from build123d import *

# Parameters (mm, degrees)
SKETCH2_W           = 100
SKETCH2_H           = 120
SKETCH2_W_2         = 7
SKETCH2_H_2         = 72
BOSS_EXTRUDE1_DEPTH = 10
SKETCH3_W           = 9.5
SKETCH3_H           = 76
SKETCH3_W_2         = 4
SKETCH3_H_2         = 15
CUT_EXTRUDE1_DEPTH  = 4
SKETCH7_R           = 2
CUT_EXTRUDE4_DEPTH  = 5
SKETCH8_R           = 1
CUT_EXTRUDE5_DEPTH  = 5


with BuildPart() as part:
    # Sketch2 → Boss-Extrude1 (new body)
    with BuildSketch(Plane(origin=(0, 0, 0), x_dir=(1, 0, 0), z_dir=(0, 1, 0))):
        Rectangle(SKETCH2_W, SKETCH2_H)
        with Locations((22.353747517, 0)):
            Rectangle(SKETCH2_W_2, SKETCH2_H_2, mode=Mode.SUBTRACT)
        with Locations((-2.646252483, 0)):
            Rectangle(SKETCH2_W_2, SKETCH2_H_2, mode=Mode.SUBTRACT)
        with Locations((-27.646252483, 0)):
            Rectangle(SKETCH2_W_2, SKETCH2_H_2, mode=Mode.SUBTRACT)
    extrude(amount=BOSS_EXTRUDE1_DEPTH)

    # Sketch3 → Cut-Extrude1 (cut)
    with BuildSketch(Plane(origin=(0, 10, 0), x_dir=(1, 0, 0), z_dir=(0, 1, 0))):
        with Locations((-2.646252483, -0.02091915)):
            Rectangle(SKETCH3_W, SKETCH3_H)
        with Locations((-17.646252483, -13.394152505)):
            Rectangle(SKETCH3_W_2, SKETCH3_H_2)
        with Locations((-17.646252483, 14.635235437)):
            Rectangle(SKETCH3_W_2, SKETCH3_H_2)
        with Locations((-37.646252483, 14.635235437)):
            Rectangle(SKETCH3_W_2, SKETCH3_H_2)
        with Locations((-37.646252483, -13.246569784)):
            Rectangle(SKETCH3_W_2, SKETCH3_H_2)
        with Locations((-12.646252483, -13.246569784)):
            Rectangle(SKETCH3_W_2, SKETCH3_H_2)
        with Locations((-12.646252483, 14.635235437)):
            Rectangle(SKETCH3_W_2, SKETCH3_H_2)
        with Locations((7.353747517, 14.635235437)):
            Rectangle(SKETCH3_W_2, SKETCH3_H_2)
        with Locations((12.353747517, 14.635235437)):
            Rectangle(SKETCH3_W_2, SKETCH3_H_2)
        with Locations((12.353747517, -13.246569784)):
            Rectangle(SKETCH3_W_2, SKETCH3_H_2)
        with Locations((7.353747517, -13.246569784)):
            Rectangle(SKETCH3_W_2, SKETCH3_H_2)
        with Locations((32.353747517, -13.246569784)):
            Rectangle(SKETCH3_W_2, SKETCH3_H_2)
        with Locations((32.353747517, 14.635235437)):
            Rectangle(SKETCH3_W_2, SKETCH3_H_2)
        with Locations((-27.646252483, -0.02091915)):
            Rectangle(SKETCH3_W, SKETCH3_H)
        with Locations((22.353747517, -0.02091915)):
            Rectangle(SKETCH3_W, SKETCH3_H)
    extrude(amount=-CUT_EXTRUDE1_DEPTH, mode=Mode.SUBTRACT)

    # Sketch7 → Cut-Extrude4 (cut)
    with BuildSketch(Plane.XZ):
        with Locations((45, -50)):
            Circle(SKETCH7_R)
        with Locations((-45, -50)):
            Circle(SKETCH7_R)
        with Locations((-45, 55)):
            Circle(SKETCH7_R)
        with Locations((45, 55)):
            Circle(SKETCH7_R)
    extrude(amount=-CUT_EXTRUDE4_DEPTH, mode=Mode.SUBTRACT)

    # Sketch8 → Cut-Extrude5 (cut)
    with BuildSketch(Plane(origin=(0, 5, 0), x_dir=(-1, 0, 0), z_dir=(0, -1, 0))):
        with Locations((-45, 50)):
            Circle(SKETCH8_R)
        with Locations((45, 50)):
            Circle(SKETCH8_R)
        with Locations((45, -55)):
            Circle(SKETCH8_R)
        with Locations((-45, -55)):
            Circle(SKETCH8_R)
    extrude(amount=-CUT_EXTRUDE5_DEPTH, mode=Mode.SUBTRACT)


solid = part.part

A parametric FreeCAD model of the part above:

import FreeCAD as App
import Part
import Sketcher

V = App.Vector
Q = App.Units.Quantity

doc = App.newDocument("Part")
body = doc.addObject("PartDesign::Body", "Body")

sketch1 = body.newObject("Sketcher::SketchObject", "Sketch")
sketch1.AttachmentSupport = (doc.getObject("XZ_Plane"), [""])
sketch1.MapMode = "FlatFace"
sketch1.addGeometry([
    Part.LineSegment(V(-50, -60, 0), V(-50, 60, 0)),
    Part.LineSegment(V(-50, 60, 0), V(50, 60, 0)),
    Part.LineSegment(V(50, 60, 0), V(50, -60, 0)),
    Part.LineSegment(V(50, -60, 0), V(-50, -60, 0)),
    Part.LineSegment(V(-24, 36, 0), V(-31, 36, 0)),
    Part.LineSegment(V(-31, 36, 0), V(-31, -36, 0)),
    Part.LineSegment(V(-31, -36, 0), V(-24, -36, 0)),
    Part.LineSegment(V(-24, -36, 0), V(-24, 36, 0)),
    Part.LineSegment(V(1, 36, 0), V(-6, 36, 0)),
    Part.LineSegment(V(-6, 36, 0), V(-6, -36, 0)),
    Part.LineSegment(V(-6, -36, 0), V(1, -36, 0)),
    Part.LineSegment(V(1, -36, 0), V(1, 36, 0)),
    Part.LineSegment(V(26, 36, 0), V(19, 36, 0)),
    Part.LineSegment(V(19, 36, 0), V(19, -36, 0)),
    Part.LineSegment(V(19, -36, 0), V(26, -36, 0)),
    Part.LineSegment(V(26, -36, 0), V(26, 36, 0)),
], False)
sketch1.addConstraint([
    Sketcher.Constraint("Coincident", 0, 2, 1, 1),
    Sketcher.Constraint("Coincident", 1, 2, 2, 1),
    Sketcher.Constraint("Coincident", 2, 2, 3, 1),
    Sketcher.Constraint("Coincident", 3, 2, 0, 1),
    Sketcher.Constraint("Coincident", 4, 2, 5, 1),
    Sketcher.Constraint("Coincident", 5, 2, 6, 1),
    Sketcher.Constraint("Coincident", 6, 2, 7, 1),
    Sketcher.Constraint("Coincident", 7, 2, 4, 1),
    Sketcher.Constraint("Coincident", 8, 2, 9, 1),
    Sketcher.Constraint("Coincident", 9, 2, 10, 1),
    Sketcher.Constraint("Coincident", 10, 2, 11, 1),
    Sketcher.Constraint("Coincident", 11, 2, 8, 1),
    Sketcher.Constraint("Coincident", 12, 2, 13, 1),
    Sketcher.Constraint("Coincident", 13, 2, 14, 1),
    Sketcher.Constraint("Coincident", 14, 2, 15, 1),
    Sketcher.Constraint("Coincident", 15, 2, 12, 1),
    Sketcher.Constraint("Vertical", 0),
    Sketcher.Constraint("Horizontal", 1),
    Sketcher.Constraint("Vertical", 2),
    Sketcher.Constraint("Horizontal", 3),
    Sketcher.Constraint("Horizontal", 4),
    Sketcher.Constraint("Vertical", 5),
    Sketcher.Constraint("Horizontal", 6),
    Sketcher.Constraint("Vertical", 7),
    Sketcher.Constraint("Horizontal", 8),
    Sketcher.Constraint("Vertical", 9),
    Sketcher.Constraint("Horizontal", 10),
    Sketcher.Constraint("Vertical", 11),
    Sketcher.Constraint("Horizontal", 12),
    Sketcher.Constraint("Vertical", 13),
    Sketcher.Constraint("Horizontal", 14),
    Sketcher.Constraint("Vertical", 15),
    Sketcher.Constraint("Symmetric", 0, 2, 2, 2, -1, 1),
    Sketcher.Constraint("Horizontal", 7, 2, 8, 2),
    Sketcher.Constraint("Horizontal", 6, 2, 9, 2),
    Sketcher.Constraint("Horizontal", 11, 2, 12, 2),
    Sketcher.Constraint("Horizontal", 10, 2, 13, 2),
    Sketcher.Constraint("Equal", 6, 8),
    Sketcher.Constraint("Equal", 10, 12),
    Sketcher.Constraint("DistanceX", 1, 1, 1, 2, Q("100 mm")),
    Sketcher.Constraint("DistanceX", 4, 2, 4, 1, Q("7 mm")),
    Sketcher.Constraint("DistanceY", 0, 1, 0, 2, Q("120 mm")),
    Sketcher.Constraint("DistanceY", 5, 2, 5, 1, Q("72 mm")),
    Sketcher.Constraint("DistanceY", -1, 1, 4, 2, Q("36 mm")),
    Sketcher.Constraint("DistanceX", 7, 2, 8, 2, Q("18 mm")),
    Sketcher.Constraint("DistanceX", 11, 2, 12, 2, Q("18 mm")),
    Sketcher.Constraint("DistanceX", 4, 2, -1, 1, Q("31.146252 mm")),
])
pad1 = body.newObject("PartDesign::Pad", "Pad")
pad1.Profile = sketch1
pad1.Length = 10
pad1.Reversed = True

sketch2 = body.newObject("Sketcher::SketchObject", "Sketch001")
sketch2.AttachmentSupport = (doc.getObject("XZ_Plane"), [""])
sketch2.MapMode = "FlatFace"
sketch2.AttachmentOffset = App.Placement(V(0, 0, -10), App.Rotation())
sketch2.addGeometry([
    Part.LineSegment(V(-7.4, -38, 0), V(-7.4, 38, 0)),
    Part.LineSegment(V(-7.4, 38, 0), V(2.1, 38, 0)),
    Part.LineSegment(V(2.1, 38, 0), V(2.1, -38, 0)),
    Part.LineSegment(V(2.1, -38, 0), V(-7.4, -38, 0)),
    Part.LineSegment(V(-19.6, 5.9, 0), V(-19.6, 20.9, 0)),
    Part.LineSegment(V(-19.6, 20.9, 0), V(-15.6, 20.9, 0)),
    Part.LineSegment(V(-15.6, 20.9, 0), V(-15.6, 5.9, 0)),
    Part.LineSegment(V(-15.6, 5.9, 0), V(-19.6, 5.9, 0)),
    Part.LineSegment(V(-19.6, -22.1, 0), V(-19.6, -7.1, 0)),
    Part.LineSegment(V(-19.6, -7.1, 0), V(-15.6, -7.1, 0)),
    Part.LineSegment(V(-15.6, -7.1, 0), V(-15.6, -22.1, 0)),
    Part.LineSegment(V(-15.6, -22.1, 0), V(-19.6, -22.1, 0)),
    Part.LineSegment(V(-39.6, -22.1, 0), V(-39.6, -7.1, 0)),
    Part.LineSegment(V(-39.6, -7.1, 0), V(-35.6, -7.1, 0)),
    Part.LineSegment(V(-35.6, -7.1, 0), V(-35.6, -22.1, 0)),
    Part.LineSegment(V(-35.6, -22.1, 0), V(-39.6, -22.1, 0)),
    Part.LineSegment(V(-39.6, 5.7, 0), V(-39.6, 20.7, 0)),
    Part.LineSegment(V(-39.6, 20.7, 0), V(-35.6, 20.7, 0)),
    Part.LineSegment(V(-35.6, 20.7, 0), V(-35.6, 5.7, 0)),
    Part.LineSegment(V(-35.6, 5.7, 0), V(-39.6, 5.7, 0)),
    Part.LineSegment(V(-14.6, 5.7, 0), V(-14.6, 20.7, 0)),
    Part.LineSegment(V(-14.6, 20.7, 0), V(-10.6, 20.7, 0)),
    Part.LineSegment(V(-10.6, 20.7, 0), V(-10.6, 5.7, 0)),
    Part.LineSegment(V(-10.6, 5.7, 0), V(-14.6, 5.7, 0)),
    Part.LineSegment(V(-14.6, -22.1, 0), V(-14.6, -7.1, 0)),
    Part.LineSegment(V(-14.6, -7.1, 0), V(-10.6, -7.1, 0)),
    Part.LineSegment(V(-10.6, -7.1, 0), V(-10.6, -22.1, 0)),
    Part.LineSegment(V(-10.6, -22.1, 0), V(-14.6, -22.1, 0)),
    Part.LineSegment(V(5.4, -22.1, 0), V(5.4, -7.1, 0)),
    Part.LineSegment(V(5.4, -7.1, 0), V(9.4, -7.1, 0)),
    Part.LineSegment(V(9.4, -7.1, 0), V(9.4, -22.1, 0)),
    Part.LineSegment(V(9.4, -22.1, 0), V(5.4, -22.1, 0)),
    Part.LineSegment(V(10.4, -22.1, 0), V(10.4, -7.1, 0)),
    Part.LineSegment(V(10.4, -7.1, 0), V(14.4, -7.1, 0)),
    Part.LineSegment(V(14.4, -7.1, 0), V(14.4, -22.1, 0)),
    Part.LineSegment(V(14.4, -22.1, 0), V(10.4, -22.1, 0)),
    Part.LineSegment(V(10.4, 5.7, 0), V(10.4, 20.7, 0)),
    Part.LineSegment(V(10.4, 20.7, 0), V(14.4, 20.7, 0)),
    Part.LineSegment(V(14.4, 20.7, 0), V(14.4, 5.7, 0)),
    Part.LineSegment(V(14.4, 5.7, 0), V(10.4, 5.7, 0)),
    Part.LineSegment(V(5.4, 5.7, 0), V(5.4, 20.7, 0)),
    Part.LineSegment(V(5.4, 20.7, 0), V(9.4, 20.7, 0)),
    Part.LineSegment(V(9.4, 20.7, 0), V(9.4, 5.7, 0)),
    Part.LineSegment(V(9.4, 5.7, 0), V(5.4, 5.7, 0)),
    Part.LineSegment(V(30.4, 5.7, 0), V(30.4, 20.7, 0)),
    Part.LineSegment(V(30.4, 20.7, 0), V(34.4, 20.7, 0)),
    Part.LineSegment(V(34.4, 20.7, 0), V(34.4, 5.7, 0)),
    Part.LineSegment(V(34.4, 5.7, 0), V(30.4, 5.7, 0)),
    Part.LineSegment(V(30.4, -22.1, 0), V(30.4, -7.1, 0)),
    Part.LineSegment(V(30.4, -7.1, 0), V(34.4, -7.1, 0)),
    Part.LineSegment(V(34.4, -7.1, 0), V(34.4, -22.1, 0)),
    Part.LineSegment(V(34.4, -22.1, 0), V(30.4, -22.1, 0)),
    Part.LineSegment(V(-32.4, -38, 0), V(-32.4, 38, 0)),
    Part.LineSegment(V(-32.4, 38, 0), V(-22.9, 38, 0)),
    Part.LineSegment(V(-22.9, 38, 0), V(-22.9, -38, 0)),
    Part.LineSegment(V(-22.9, -38, 0), V(-32.4, -38, 0)),
    Part.LineSegment(V(17.6, -38, 0), V(17.6, 38, 0)),
    Part.LineSegment(V(17.6, 38, 0), V(27.1, 38, 0)),
    Part.LineSegment(V(27.1, 38, 0), V(27.1, -38, 0)),
    Part.LineSegment(V(27.1, -38, 0), V(17.6, -38, 0)),
], False)
sketch2.addConstraint([
    Sketcher.Constraint("Coincident", 0, 2, 1, 1),
    Sketcher.Constraint("Coincident", 1, 2, 2, 1),
    Sketcher.Constraint("Coincident", 2, 2, 3, 1),
    Sketcher.Constraint("Coincident", 3, 2, 0, 1),
    Sketcher.Constraint("Coincident", 4, 2, 5, 1),
    Sketcher.Constraint("Coincident", 5, 2, 6, 1),
    Sketcher.Constraint("Coincident", 6, 2, 7, 1),
    Sketcher.Constraint("Coincident", 7, 2, 4, 1),
    Sketcher.Constraint("Coincident", 8, 2, 9, 1),
    Sketcher.Constraint("Coincident", 9, 2, 10, 1),
    Sketcher.Constraint("Coincident", 10, 2, 11, 1),
    Sketcher.Constraint("Coincident", 11, 2, 8, 1),
    Sketcher.Constraint("Coincident", 12, 2, 13, 1),
    Sketcher.Constraint("Coincident", 13, 2, 14, 1),
    Sketcher.Constraint("Coincident", 14, 2, 15, 1),
    Sketcher.Constraint("Coincident", 15, 2, 12, 1),
    Sketcher.Constraint("Coincident", 16, 2, 17, 1),
    Sketcher.Constraint("Coincident", 17, 2, 18, 1),
    Sketcher.Constraint("Coincident", 18, 2, 19, 1),
    Sketcher.Constraint("Coincident", 19, 2, 16, 1),
    Sketcher.Constraint("Coincident", 20, 2, 21, 1),
    Sketcher.Constraint("Coincident", 21, 2, 22, 1),
    Sketcher.Constraint("Coincident", 22, 2, 23, 1),
    Sketcher.Constraint("Coincident", 23, 2, 20, 1),
    Sketcher.Constraint("Coincident", 24, 2, 25, 1),
    Sketcher.Constraint("Coincident", 25, 2, 26, 1),
    Sketcher.Constraint("Coincident", 26, 2, 27, 1),
    Sketcher.Constraint("Coincident", 27, 2, 24, 1),
    Sketcher.Constraint("Coincident", 28, 2, 29, 1),
    Sketcher.Constraint("Coincident", 29, 2, 30, 1),
    Sketcher.Constraint("Coincident", 30, 2, 31, 1),
    Sketcher.Constraint("Coincident", 31, 2, 28, 1),
    Sketcher.Constraint("Coincident", 32, 2, 33, 1),
    Sketcher.Constraint("Coincident", 33, 2, 34, 1),
    Sketcher.Constraint("Coincident", 34, 2, 35, 1),
    Sketcher.Constraint("Coincident", 35, 2, 32, 1),
    Sketcher.Constraint("Coincident", 36, 2, 37, 1),
    Sketcher.Constraint("Coincident", 37, 2, 38, 1),
    Sketcher.Constraint("Coincident", 38, 2, 39, 1),
    Sketcher.Constraint("Coincident", 39, 2, 36, 1),
    Sketcher.Constraint("Coincident", 40, 2, 41, 1),
    Sketcher.Constraint("Coincident", 41, 2, 42, 1),
    Sketcher.Constraint("Coincident", 42, 2, 43, 1),
    Sketcher.Constraint("Coincident", 43, 2, 40, 1),
    Sketcher.Constraint("Coincident", 44, 2, 45, 1),
    Sketcher.Constraint("Coincident", 45, 2, 46, 1),
    Sketcher.Constraint("Coincident", 46, 2, 47, 1),
    Sketcher.Constraint("Coincident", 47, 2, 44, 1),
    Sketcher.Constraint("Coincident", 48, 2, 49, 1),
    Sketcher.Constraint("Coincident", 49, 2, 50, 1),
    Sketcher.Constraint("Coincident", 50, 2, 51, 1),
    Sketcher.Constraint("Coincident", 51, 2, 48, 1),
    Sketcher.Constraint("Coincident", 52, 2, 53, 1),
    Sketcher.Constraint("Coincident", 53, 2, 54, 1),
    Sketcher.Constraint("Coincident", 54, 2, 55, 1),
    Sketcher.Constraint("Coincident", 55, 2, 52, 1),
    Sketcher.Constraint("Coincident", 56, 2, 57, 1),
    Sketcher.Constraint("Coincident", 57, 2, 58, 1),
    Sketcher.Constraint("Coincident", 58, 2, 59, 1),
    Sketcher.Constraint("Coincident", 59, 2, 56, 1),
    Sketcher.Constraint("Vertical", 0),
    Sketcher.Constraint("Horizontal", 1),
    Sketcher.Constraint("Vertical", 2),
    Sketcher.Constraint("Horizontal", 3),
    Sketcher.Constraint("Vertical", 4),
    Sketcher.Constraint("Horizontal", 5),
    Sketcher.Constraint("Vertical", 6),
    Sketcher.Constraint("Horizontal", 7),
    Sketcher.Constraint("Vertical", 8),
    Sketcher.Constraint("Horizontal", 9),
    Sketcher.Constraint("Vertical", 10),
    Sketcher.Constraint("Horizontal", 11),
    Sketcher.Constraint("Vertical", 12),
    Sketcher.Constraint("Horizontal", 13),
    Sketcher.Constraint("Vertical", 14),
    Sketcher.Constraint("Horizontal", 15),
    Sketcher.Constraint("Vertical", 16),
    Sketcher.Constraint("Horizontal", 17),
    Sketcher.Constraint("Vertical", 18),
    Sketcher.Constraint("Horizontal", 19),
    Sketcher.Constraint("Vertical", 20),
    Sketcher.Constraint("Horizontal", 21),
    Sketcher.Constraint("Vertical", 22),
    Sketcher.Constraint("Horizontal", 23),
    Sketcher.Constraint("Vertical", 24),
    Sketcher.Constraint("Horizontal", 25),
    Sketcher.Constraint("Vertical", 26),
    Sketcher.Constraint("Horizontal", 27),
    Sketcher.Constraint("Vertical", 28),
    Sketcher.Constraint("Horizontal", 29),
    Sketcher.Constraint("Vertical", 30),
    Sketcher.Constraint("Horizontal", 31),
    Sketcher.Constraint("Vertical", 32),
    Sketcher.Constraint("Horizontal", 33),
    Sketcher.Constraint("Vertical", 34),
    Sketcher.Constraint("Horizontal", 35),
    Sketcher.Constraint("Vertical", 36),
    Sketcher.Constraint("Horizontal", 37),
    Sketcher.Constraint("Vertical", 38),
    Sketcher.Constraint("Horizontal", 39),
    Sketcher.Constraint("Vertical", 40),
    Sketcher.Constraint("Horizontal", 41),
    Sketcher.Constraint("Vertical", 42),
    Sketcher.Constraint("Horizontal", 43),
    Sketcher.Constraint("Vertical", 44),
    Sketcher.Constraint("Horizontal", 45),
    Sketcher.Constraint("Vertical", 46),
    Sketcher.Constraint("Horizontal", 47),
    Sketcher.Constraint("Vertical", 48),
    Sketcher.Constraint("Horizontal", 49),
    Sketcher.Constraint("Vertical", 50),
    Sketcher.Constraint("Horizontal", 51),
    Sketcher.Constraint("Vertical", 52),
    Sketcher.Constraint("Horizontal", 53),
    Sketcher.Constraint("Vertical", 54),
    Sketcher.Constraint("Horizontal", 55),
    Sketcher.Constraint("Vertical", 56),
    Sketcher.Constraint("Horizontal", 57),
    Sketcher.Constraint("Vertical", 58),
    Sketcher.Constraint("Horizontal", 59),
    Sketcher.Constraint("Horizontal", 9, 2, 12, 2),
    Sketcher.Constraint("Horizontal", 11, 2, 14, 2),
    Sketcher.Constraint("Horizontal", 17, 2, 20, 2),
    Sketcher.Constraint("Horizontal", 19, 2, 22, 2),
    Sketcher.Constraint("Horizontal", 13, 2, 24, 2),
    Sketcher.Constraint("Horizontal", 15, 2, 26, 2),
    Sketcher.Constraint("Horizontal", 25, 2, 28, 2),
    Sketcher.Constraint("Horizontal", 27, 2, 30, 2),
    Sketcher.Constraint("Horizontal", 29, 2, 32, 2),
    Sketcher.Constraint("Horizontal", 31, 2, 34, 2),
    Sketcher.Constraint("Horizontal", 21, 2, 36, 2),
    Sketcher.Constraint("Horizontal", 23, 2, 38, 2),
    Sketcher.Constraint("Horizontal", 37, 2, 40, 2),
    Sketcher.Constraint("Horizontal", 39, 2, 42, 2),
    Sketcher.Constraint("Horizontal", 41, 2, 44, 2),
    Sketcher.Constraint("Horizontal", 43, 2, 46, 2),
    Sketcher.Constraint("Horizontal", 33, 2, 48, 2),
    Sketcher.Constraint("Horizontal", 35, 2, 50, 2),
    Sketcher.Constraint("Horizontal", 1, 2, 52, 2),
    Sketcher.Constraint("Horizontal", 3, 2, 54, 2),
    Sketcher.Constraint("Horizontal", 53, 2, 56, 2),
    Sketcher.Constraint("Horizontal", 55, 2, 58, 2),
    Sketcher.Constraint("Vertical", 7, 2, 8, 2),
    Sketcher.Constraint("Vertical", 6, 2, 9, 2),
    Sketcher.Constraint("Vertical", 15, 2, 16, 2),
    Sketcher.Constraint("Vertical", 14, 2, 17, 2),
    Sketcher.Constraint("Vertical", 23, 2, 24, 2),
    Sketcher.Constraint("Vertical", 22, 2, 25, 2),
    Sketcher.Constraint("Vertical", 35, 2, 36, 2),
    Sketcher.Constraint("Vertical", 34, 2, 37, 2),
    Sketcher.Constraint("Vertical", 31, 2, 40, 2),
    Sketcher.Constraint("Vertical", 30, 2, 41, 2),
    Sketcher.Constraint("Vertical", 47, 2, 48, 2),
    Sketcher.Constraint("Vertical", 46, 2, 49, 2),
    Sketcher.Constraint("Equal", 11, 13),
    Sketcher.Constraint("Equal", 19, 21),
    Sketcher.Constraint("Equal", 27, 29),
    Sketcher.Constraint("Equal", 31, 33),
    Sketcher.Constraint("Equal", 43, 45),
    Sketcher.Constraint("Equal", 3, 53),
    Sketcher.Constraint("Equal", 55, 57),
    Sketcher.Constraint("Equal", 6, 8),
    Sketcher.Constraint("Equal", 14, 16),
    Sketcher.Constraint("DistanceX", 5, 1, 5, 2, Q("4 mm")),
    Sketcher.Constraint("DistanceY", 0, 1, 0, 2, Q("76 mm")),
    Sketcher.Constraint("DistanceY", 4, 1, 4, 2, Q("15 mm")),
    Sketcher.Constraint("DistanceX", 1, 1, 1, 2, Q("9.5 mm")),
    Sketcher.Constraint("DistanceX", 12, 2, 8, 2, Q("20 mm")),
    Sketcher.Constraint("DistanceX", 5, 2, 20, 2, Q("1 mm")),
    Sketcher.Constraint("DistanceX", 25, 2, 28, 2, Q("16 mm")),
    Sketcher.Constraint("DistanceX", 29, 2, 32, 2, Q("1 mm")),
    Sketcher.Constraint("DistanceX", 37, 2, 44, 2, Q("16 mm")),
    Sketcher.Constraint("DistanceX", 53, 2, 0, 2, Q("15.5 mm")),
    Sketcher.Constraint("DistanceX", 1, 2, 56, 2, Q("15.5 mm")),
    Sketcher.Constraint("DistanceX", 4, 2, 0, 2, Q("12.25 mm")),
    Sketcher.Constraint("DistanceY", -1, 1, 0, 2, Q("38.020919 mm")),
    Sketcher.Constraint("DistanceY", -1, 1, 16, 2, Q("20.74657 mm")),
    Sketcher.Constraint("DistanceX", 0, 2, -1, 1, Q("7.396252 mm")),
    Sketcher.Constraint("DistanceY", -1, 1, 4, 2, Q("20.894153 mm")),
    Sketcher.Constraint("DistanceY", 8, 2, -1, 1, Q("7.135235 mm")),
])
pocket1 = body.newObject("PartDesign::Pocket", "Pocket")
pocket1.Profile = sketch2
pocket1.Length = 4
pocket1.Reversed = True

sketch3 = body.newObject("Sketcher::SketchObject", "Sketch002")
sketch3.AttachmentSupport = (doc.getObject("XZ_Plane"), [""])
sketch3.MapMode = "FlatFace"
sketch3.addGeometry([
    Part.Circle(V(45, -50, 0), V(0, 0, 1), 2),
    Part.Circle(V(-45, -50, 0), V(0, 0, 1), 2),
    Part.Circle(V(-45, 55, 0), V(0, 0, 1), 2),
    Part.Circle(V(45, 55, 0), V(0, 0, 1), 2),
], False)
sketch3.addConstraint([
    Sketcher.Constraint("Equal", 0, 1),
    Sketcher.Constraint("Equal", 1, 2),
    Sketcher.Constraint("Equal", 2, 3),
    Sketcher.Constraint("Symmetric", 0, 3, 1, 3, -2),
    Sketcher.Constraint("Symmetric", 2, 3, 3, 3, -2),
    Sketcher.Constraint("Vertical", 1, 3, 2, 3),
    Sketcher.Constraint("Diameter", 0, Q("4 mm")),
    Sketcher.Constraint("DistanceX", -1, 1, 0, 3, Q("45 mm")),
    Sketcher.Constraint("DistanceY", 0, 3, -1, 1, Q("50 mm")),
    Sketcher.Constraint("DistanceY", -1, 1, 2, 3, Q("55 mm")),
])
pocket2 = body.newObject("PartDesign::Pocket", "Pocket001")
pocket2.Profile = sketch3
pocket2.Length = 5

sketch4 = body.newObject("Sketcher::SketchObject", "Sketch003")
sketch4.AttachmentSupport = (doc.getObject("XZ_Plane"), [""])
sketch4.MapMode = "FlatFace"
sketch4.AttachmentOffset = App.Placement(V(0, 0, -5), App.Rotation())
sketch4.addGeometry([
    Part.Circle(V(45, -50, 0), V(0, 0, 1), 1),
    Part.Circle(V(-45, -50, 0), V(0, 0, 1), 1),
    Part.Circle(V(-45, 55, 0), V(0, 0, 1), 1),
    Part.Circle(V(45, 55, 0), V(0, 0, 1), 1),
], False)
sketch4.addConstraint([
    Sketcher.Constraint("Equal", 0, 1),
    Sketcher.Constraint("Equal", 1, 2),
    Sketcher.Constraint("Equal", 2, 3),
    Sketcher.Constraint("Symmetric", 0, 3, 1, 3, -2),
    Sketcher.Constraint("Symmetric", 2, 3, 3, 3, -2),
    Sketcher.Constraint("Vertical", 1, 3, 2, 3),
    Sketcher.Constraint("Diameter", 0, Q("2 mm")),
    Sketcher.Constraint("DistanceX", -1, 1, 0, 3, Q("45 mm")),
    Sketcher.Constraint("DistanceY", 0, 3, -1, 1, Q("50 mm")),
    Sketcher.Constraint("DistanceY", -1, 1, 2, 3, Q("55 mm")),
])
pocket3 = body.newObject("PartDesign::Pocket", "Pocket002")
pocket3.Profile = sketch4
pocket3.Length = 5

doc.recompute()
